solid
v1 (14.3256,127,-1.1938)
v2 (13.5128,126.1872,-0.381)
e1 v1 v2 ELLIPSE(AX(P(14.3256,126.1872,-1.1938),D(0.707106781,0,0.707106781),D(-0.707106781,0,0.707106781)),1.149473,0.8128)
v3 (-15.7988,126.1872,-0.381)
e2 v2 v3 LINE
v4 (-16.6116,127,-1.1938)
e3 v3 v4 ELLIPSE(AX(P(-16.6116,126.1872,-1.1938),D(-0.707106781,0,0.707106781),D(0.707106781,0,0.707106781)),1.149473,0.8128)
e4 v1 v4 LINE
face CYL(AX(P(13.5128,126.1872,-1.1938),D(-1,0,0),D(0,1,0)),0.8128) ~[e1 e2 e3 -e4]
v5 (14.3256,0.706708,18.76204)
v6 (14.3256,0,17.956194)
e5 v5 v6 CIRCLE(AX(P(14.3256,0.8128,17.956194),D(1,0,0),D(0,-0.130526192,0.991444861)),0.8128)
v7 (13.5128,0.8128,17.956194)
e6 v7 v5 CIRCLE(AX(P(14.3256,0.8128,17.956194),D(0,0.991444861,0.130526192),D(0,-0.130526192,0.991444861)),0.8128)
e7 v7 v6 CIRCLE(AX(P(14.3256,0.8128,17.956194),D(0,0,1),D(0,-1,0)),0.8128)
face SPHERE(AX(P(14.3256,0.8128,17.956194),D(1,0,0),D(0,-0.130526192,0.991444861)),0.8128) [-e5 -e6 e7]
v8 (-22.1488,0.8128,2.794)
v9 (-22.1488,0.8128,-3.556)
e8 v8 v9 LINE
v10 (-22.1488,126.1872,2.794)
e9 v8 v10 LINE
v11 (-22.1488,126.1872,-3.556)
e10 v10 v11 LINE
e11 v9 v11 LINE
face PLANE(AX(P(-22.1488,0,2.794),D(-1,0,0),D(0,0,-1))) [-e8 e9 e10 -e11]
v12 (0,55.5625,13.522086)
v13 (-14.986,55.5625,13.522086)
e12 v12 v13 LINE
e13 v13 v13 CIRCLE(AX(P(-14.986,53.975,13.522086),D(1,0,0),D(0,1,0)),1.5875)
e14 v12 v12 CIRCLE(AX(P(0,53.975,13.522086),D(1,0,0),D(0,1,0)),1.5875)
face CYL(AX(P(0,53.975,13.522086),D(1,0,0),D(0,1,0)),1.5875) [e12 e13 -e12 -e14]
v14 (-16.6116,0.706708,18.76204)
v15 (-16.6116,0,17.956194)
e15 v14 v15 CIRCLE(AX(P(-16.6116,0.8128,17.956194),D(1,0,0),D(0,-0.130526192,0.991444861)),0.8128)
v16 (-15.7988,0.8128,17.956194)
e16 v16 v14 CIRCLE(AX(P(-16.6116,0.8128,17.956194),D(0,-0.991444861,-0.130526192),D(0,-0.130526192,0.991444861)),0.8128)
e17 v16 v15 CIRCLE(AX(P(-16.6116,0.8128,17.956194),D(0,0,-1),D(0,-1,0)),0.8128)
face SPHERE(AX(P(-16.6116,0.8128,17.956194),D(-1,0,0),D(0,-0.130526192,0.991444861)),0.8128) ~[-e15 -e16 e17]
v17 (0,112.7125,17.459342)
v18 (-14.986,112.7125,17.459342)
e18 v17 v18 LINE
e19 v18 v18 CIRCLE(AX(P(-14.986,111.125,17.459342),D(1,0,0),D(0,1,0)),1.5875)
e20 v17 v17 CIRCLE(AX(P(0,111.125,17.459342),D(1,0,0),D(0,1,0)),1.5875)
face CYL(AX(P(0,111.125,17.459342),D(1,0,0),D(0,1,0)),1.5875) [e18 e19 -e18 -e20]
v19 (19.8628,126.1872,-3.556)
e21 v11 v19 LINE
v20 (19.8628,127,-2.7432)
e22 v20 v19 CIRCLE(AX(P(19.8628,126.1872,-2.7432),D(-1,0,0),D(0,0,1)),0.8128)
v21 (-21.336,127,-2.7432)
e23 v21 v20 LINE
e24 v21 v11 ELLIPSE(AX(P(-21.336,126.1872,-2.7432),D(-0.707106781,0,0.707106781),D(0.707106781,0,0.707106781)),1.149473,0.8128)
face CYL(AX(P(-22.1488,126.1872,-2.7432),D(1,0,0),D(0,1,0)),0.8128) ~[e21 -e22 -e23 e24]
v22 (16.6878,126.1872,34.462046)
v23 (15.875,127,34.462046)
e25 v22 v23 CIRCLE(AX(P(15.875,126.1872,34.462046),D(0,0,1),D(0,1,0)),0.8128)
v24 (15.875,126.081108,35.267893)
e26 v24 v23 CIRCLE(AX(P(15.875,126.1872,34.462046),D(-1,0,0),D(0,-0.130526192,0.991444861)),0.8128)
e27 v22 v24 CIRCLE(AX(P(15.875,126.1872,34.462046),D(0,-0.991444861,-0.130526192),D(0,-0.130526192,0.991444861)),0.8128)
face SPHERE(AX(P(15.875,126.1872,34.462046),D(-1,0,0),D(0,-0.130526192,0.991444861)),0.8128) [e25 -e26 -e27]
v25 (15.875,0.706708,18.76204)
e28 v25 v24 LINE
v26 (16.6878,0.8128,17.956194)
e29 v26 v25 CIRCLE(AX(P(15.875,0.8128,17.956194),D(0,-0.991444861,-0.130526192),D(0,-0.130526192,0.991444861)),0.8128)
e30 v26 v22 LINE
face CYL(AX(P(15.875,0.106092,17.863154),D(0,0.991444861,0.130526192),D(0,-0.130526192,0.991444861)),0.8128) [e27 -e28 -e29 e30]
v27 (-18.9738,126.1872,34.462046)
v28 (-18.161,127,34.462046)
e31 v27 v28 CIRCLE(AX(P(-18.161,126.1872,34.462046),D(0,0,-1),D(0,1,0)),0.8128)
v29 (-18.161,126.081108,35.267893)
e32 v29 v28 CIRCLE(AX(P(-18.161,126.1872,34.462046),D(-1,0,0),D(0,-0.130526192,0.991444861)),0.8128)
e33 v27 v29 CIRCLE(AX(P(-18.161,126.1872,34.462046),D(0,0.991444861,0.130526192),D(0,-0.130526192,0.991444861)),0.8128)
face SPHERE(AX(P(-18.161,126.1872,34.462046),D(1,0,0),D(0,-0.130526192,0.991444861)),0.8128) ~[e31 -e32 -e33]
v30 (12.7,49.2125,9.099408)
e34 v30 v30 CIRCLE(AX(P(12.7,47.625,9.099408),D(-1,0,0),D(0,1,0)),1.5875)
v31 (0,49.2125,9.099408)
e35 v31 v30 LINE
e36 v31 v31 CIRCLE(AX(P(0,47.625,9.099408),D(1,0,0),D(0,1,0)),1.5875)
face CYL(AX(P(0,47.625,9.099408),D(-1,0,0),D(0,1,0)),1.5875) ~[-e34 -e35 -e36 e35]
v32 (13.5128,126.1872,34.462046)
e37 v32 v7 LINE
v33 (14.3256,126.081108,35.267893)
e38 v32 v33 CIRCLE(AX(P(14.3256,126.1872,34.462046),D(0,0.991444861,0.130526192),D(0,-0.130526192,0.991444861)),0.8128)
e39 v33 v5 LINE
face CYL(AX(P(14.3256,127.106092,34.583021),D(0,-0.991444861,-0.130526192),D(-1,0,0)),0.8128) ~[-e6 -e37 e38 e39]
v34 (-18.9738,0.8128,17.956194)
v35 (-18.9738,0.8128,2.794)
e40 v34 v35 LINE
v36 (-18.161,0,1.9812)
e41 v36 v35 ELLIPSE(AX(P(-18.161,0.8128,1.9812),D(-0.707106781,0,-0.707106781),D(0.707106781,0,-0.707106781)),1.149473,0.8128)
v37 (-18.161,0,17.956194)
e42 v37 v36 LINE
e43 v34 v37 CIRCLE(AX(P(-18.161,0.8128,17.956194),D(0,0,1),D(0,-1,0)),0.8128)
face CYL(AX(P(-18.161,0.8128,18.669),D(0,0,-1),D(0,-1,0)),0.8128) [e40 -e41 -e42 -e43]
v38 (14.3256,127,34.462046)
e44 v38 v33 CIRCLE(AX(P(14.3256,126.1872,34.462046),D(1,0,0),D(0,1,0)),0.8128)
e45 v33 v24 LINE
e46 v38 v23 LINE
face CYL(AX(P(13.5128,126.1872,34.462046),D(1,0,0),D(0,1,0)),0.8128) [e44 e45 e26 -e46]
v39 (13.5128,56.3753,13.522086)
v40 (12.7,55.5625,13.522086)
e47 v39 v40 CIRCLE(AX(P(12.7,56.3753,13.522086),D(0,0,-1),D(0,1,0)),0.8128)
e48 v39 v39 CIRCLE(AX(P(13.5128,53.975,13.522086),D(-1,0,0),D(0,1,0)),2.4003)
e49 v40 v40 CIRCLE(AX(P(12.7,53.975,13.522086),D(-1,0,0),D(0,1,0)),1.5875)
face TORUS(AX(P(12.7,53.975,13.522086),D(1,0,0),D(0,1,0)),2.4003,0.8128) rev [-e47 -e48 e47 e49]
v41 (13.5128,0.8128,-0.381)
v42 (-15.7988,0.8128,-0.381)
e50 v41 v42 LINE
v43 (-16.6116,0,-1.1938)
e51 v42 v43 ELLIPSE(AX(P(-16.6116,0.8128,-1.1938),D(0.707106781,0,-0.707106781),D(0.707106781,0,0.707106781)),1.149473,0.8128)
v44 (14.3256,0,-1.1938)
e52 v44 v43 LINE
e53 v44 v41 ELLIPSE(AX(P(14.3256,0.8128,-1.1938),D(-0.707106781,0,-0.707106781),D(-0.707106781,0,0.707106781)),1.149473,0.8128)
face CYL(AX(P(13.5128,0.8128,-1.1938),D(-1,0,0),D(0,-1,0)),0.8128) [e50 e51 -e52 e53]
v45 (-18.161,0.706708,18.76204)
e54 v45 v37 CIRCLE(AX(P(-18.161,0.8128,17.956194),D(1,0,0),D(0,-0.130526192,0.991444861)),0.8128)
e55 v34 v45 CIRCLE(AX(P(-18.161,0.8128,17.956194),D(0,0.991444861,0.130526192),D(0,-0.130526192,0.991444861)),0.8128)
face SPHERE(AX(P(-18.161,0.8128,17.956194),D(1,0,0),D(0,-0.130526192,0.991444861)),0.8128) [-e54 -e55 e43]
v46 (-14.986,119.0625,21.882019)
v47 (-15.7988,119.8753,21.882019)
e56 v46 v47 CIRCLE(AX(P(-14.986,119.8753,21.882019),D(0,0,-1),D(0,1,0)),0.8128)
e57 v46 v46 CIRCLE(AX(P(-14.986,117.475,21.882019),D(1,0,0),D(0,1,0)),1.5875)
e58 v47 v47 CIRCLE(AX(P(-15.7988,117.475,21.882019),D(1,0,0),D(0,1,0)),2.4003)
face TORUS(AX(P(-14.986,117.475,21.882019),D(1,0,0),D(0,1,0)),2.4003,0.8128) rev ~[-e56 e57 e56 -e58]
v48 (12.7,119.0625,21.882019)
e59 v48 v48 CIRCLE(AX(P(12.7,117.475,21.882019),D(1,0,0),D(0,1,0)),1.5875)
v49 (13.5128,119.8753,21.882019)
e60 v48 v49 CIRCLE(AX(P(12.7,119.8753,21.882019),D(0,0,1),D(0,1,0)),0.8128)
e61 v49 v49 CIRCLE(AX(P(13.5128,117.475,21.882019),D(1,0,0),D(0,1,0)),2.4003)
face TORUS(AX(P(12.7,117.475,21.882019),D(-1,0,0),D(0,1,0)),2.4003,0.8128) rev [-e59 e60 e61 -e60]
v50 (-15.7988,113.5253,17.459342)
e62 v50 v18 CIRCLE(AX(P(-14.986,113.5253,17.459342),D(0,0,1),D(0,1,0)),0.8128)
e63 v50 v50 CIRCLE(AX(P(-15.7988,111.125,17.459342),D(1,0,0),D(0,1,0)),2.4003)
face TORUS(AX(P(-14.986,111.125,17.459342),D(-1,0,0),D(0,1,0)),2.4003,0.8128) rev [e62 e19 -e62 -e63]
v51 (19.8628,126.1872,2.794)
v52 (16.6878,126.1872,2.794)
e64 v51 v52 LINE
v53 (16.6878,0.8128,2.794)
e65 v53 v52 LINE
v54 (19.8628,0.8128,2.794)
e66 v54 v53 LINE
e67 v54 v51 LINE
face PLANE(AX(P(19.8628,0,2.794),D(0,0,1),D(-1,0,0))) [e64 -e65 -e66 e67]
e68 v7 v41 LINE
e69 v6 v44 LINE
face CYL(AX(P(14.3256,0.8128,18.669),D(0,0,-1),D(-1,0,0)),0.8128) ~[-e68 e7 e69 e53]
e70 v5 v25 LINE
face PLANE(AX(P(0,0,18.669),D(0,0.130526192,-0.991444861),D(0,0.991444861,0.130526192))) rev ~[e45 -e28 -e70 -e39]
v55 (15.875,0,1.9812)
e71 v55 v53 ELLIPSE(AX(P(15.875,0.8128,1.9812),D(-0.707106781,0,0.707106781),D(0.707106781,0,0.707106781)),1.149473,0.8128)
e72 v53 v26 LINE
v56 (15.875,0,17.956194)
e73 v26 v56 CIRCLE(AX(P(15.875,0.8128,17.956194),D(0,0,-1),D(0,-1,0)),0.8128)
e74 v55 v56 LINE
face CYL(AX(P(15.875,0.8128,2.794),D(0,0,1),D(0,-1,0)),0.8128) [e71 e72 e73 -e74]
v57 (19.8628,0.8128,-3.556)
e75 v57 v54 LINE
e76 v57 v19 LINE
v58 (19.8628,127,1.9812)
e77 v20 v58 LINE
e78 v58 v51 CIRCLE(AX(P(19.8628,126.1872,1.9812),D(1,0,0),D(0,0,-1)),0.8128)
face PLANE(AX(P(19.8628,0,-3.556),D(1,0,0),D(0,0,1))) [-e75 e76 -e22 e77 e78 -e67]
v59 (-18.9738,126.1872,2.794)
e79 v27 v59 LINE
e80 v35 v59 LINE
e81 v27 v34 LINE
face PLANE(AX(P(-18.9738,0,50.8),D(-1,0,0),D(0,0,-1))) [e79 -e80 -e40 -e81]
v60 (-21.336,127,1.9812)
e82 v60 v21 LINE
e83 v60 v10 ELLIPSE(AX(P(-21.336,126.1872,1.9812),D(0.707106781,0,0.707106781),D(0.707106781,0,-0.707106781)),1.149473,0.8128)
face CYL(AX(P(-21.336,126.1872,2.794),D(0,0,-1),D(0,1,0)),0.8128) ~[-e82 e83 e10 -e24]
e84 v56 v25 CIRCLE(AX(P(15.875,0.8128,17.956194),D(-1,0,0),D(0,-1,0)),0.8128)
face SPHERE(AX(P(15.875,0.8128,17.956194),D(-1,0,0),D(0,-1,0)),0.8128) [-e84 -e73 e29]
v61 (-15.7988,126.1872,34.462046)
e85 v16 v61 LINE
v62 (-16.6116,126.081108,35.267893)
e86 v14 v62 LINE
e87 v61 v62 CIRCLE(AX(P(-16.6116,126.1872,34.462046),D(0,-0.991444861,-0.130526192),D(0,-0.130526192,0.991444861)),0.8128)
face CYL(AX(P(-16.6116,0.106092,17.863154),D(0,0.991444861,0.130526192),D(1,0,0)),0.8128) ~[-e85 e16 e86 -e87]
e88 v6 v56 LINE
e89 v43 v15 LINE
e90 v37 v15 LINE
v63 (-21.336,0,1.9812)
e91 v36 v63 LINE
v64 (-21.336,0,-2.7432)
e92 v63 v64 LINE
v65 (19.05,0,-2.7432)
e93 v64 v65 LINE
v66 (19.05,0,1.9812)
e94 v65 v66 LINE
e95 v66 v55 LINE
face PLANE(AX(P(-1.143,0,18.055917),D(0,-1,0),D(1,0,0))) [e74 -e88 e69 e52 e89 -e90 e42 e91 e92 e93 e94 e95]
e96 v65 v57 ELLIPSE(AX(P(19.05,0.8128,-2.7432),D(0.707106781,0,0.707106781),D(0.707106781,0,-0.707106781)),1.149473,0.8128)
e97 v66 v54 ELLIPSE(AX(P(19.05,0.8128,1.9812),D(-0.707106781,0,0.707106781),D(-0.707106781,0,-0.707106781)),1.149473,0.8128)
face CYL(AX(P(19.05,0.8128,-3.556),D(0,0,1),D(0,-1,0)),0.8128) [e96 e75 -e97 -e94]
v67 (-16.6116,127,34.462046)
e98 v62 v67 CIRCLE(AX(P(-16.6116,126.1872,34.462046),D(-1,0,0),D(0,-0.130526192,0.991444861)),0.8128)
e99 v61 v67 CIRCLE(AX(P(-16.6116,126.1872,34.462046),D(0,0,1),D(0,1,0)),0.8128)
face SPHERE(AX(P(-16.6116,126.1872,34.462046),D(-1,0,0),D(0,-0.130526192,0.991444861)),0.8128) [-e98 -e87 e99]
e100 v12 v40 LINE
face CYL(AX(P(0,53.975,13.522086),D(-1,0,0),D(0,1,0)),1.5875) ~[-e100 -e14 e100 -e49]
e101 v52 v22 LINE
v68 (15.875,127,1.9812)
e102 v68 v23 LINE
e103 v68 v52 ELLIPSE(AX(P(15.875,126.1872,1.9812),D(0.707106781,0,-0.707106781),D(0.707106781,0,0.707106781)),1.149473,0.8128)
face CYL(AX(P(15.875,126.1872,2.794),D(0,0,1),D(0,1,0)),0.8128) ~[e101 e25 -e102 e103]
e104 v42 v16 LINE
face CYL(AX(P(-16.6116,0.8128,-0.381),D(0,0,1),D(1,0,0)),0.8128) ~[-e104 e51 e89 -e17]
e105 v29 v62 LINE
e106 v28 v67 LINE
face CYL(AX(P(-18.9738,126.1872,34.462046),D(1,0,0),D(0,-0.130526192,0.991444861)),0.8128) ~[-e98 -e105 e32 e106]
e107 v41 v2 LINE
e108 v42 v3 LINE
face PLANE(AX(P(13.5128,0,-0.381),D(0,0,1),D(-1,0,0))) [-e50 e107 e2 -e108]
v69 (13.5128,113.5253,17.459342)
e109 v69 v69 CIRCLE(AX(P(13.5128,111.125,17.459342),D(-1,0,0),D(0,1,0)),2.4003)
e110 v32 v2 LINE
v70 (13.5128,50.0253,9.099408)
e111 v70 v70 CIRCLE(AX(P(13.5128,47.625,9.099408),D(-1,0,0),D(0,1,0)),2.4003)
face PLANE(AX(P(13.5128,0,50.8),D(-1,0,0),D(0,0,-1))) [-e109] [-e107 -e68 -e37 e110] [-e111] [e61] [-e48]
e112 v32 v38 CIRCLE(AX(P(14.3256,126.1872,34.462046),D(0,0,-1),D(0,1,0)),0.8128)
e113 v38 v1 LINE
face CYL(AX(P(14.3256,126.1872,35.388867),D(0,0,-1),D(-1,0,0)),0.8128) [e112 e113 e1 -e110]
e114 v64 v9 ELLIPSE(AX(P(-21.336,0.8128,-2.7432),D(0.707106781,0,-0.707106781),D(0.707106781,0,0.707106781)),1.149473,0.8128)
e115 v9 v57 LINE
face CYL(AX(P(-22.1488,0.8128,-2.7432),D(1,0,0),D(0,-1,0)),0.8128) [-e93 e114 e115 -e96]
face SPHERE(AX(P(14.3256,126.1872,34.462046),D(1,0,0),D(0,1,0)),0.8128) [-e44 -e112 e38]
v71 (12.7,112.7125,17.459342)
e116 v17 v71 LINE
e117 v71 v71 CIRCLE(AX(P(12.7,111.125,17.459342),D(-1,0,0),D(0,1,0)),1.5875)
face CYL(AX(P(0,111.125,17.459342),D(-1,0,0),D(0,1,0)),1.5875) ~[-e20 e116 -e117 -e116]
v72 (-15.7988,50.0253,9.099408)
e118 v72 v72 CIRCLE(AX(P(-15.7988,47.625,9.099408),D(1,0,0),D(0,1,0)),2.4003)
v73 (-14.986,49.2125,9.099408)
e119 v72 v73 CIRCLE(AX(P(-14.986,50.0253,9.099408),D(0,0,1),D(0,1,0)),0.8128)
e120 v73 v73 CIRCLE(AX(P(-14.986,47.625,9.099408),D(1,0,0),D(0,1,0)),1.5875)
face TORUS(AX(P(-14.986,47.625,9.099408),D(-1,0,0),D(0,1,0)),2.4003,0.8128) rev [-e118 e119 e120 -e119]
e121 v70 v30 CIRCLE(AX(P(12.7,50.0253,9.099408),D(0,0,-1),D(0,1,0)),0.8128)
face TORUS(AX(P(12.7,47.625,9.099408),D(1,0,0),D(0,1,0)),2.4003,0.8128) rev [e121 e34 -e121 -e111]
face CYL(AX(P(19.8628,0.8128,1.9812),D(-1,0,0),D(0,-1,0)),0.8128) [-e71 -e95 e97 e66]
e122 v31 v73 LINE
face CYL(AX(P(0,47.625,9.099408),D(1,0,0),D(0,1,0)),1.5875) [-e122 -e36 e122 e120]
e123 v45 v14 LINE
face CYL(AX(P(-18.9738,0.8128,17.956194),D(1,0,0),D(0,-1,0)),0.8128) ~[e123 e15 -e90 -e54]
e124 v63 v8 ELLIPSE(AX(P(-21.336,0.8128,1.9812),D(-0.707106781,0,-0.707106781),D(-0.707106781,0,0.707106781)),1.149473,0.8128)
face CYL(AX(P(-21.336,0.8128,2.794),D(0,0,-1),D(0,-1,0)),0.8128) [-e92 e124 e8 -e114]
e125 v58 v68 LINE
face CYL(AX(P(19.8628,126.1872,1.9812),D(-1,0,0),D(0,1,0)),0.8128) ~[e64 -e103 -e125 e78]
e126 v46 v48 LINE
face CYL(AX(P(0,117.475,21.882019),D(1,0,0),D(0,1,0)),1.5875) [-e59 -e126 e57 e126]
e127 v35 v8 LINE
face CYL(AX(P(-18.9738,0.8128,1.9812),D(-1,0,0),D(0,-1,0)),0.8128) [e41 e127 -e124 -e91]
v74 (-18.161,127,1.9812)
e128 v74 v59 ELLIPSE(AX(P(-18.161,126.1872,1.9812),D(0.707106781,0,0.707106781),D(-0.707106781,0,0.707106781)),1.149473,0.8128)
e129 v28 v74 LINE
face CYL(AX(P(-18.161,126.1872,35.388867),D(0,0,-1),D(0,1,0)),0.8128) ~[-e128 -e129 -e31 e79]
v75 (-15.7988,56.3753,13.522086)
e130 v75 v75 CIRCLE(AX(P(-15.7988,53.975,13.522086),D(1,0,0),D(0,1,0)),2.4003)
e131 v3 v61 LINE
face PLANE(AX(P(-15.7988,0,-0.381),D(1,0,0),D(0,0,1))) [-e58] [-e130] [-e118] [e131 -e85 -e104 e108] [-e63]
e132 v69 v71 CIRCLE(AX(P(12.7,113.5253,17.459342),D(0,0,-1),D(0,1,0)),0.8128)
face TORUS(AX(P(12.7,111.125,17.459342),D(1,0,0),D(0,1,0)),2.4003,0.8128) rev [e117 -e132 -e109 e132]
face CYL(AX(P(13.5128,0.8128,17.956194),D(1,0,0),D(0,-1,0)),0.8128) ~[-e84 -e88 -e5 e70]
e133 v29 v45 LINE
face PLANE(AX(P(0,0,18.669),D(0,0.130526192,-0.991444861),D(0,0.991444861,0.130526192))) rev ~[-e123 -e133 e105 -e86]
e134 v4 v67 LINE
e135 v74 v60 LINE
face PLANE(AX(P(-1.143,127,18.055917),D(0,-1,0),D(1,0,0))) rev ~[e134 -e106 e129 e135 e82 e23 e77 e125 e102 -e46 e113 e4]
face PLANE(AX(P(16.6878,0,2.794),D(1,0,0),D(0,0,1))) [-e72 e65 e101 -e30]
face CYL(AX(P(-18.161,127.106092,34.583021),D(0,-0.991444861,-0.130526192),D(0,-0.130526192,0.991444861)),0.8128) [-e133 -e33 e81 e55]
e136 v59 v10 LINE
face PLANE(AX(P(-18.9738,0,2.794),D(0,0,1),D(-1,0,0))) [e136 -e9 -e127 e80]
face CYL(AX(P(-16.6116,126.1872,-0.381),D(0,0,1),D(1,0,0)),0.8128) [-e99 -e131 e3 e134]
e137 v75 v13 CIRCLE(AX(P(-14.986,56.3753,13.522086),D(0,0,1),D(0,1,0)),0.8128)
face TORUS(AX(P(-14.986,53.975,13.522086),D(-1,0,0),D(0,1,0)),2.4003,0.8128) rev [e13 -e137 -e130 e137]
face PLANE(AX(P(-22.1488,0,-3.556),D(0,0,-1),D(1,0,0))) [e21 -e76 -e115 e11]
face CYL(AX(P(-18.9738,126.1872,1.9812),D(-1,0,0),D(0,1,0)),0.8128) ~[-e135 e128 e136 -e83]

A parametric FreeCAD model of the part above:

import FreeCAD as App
import Part
import Sketcher
from FreeCAD import Vector
Q = App.Units.Quantity


def edges_at(feature, points):
    """Names of the edges that pass closest to the given points."""
    edges = feature.Shape.Edges
    near = lambda p: min(range(len(edges)), key=lambda i: edges[i].distToShape(Part.Vertex(*p))[0])
    return sorted({f"Edge{near(p) + 1}" for p in points})


def add_polygon(sketch, points):
    """Adds a closed chain of lines whose ends are joined by coincident constraints."""
    first, n = sketch.GeometryCount, len(points)
    for a, b in zip(points, points[1:] + points[:1]):
        sketch.addGeometry(Part.LineSegment(App.Vector(*a, 0), App.Vector(*b, 0)), False)
    for i in range(n):
        sketch.addConstraint(Sketcher.Constraint("Coincident", first + i, 2, first + (i + 1) % n, 1))

doc = App.newDocument("Part")
body = doc.addObject("PartDesign::Body", "Body")

# Sketch on XZ plane
sketch1 = body.newObject("Sketcher::SketchObject", "Sketch")
sketch1.AttachmentSupport = (doc.getObject("XZ_Plane"), [""])
sketch1.MapMode = "FlatFace"
add_polygon(sketch1, [(13.5, 50.8), (13.5, -0.4), (-15.8, -0.4), (-15.8, 50.8), (-19, 50.8), (-19, 2.8), (-22.1, 2.8), (-22.1, -3.6), (19.9, -3.6), (19.9, 2.8), (16.7, 2.8), (16.7, 50.8)])  # lines 0-11
sketch1.addConstraint([
    Sketcher.Constraint("Vertical", 0),
    Sketcher.Constraint("Horizontal", 1),
    Sketcher.Constraint("Vertical", 2),
    Sketcher.Constraint("Horizontal", 3),
    Sketcher.Constraint("Vertical", 4),
    Sketcher.Constraint("Horizontal", 5),
    Sketcher.Constraint("Vertical", 6),
    Sketcher.Constraint("Horizontal", 7),
    Sketcher.Constraint("Vertical", 8),
    Sketcher.Constraint("Horizontal", 9),
    Sketcher.Constraint("Vertical", 10),
    Sketcher.Constraint("Horizontal", 11),
    Sketcher.Constraint("Horizontal", 5, 2, 8, 2),
    Sketcher.Constraint("Horizontal", 3, 2, 10, 2),
    Sketcher.Constraint("Equal", 3, 5),
    Sketcher.Constraint("Equal", 5, 9),
    Sketcher.Constraint("Equal", 9, 11),
    Sketcher.Constraint("DistanceY", -1, 1, 2, 2, Q("2 in")),
    Sketcher.Constraint("DistanceY", 4, 2, 4, 1, Q("1.89 in")),
    Sketcher.Constraint("DistanceY", 6, 2, 6, 1, Q("0.25 in")),
    Sketcher.Constraint("DistanceX", 1, 2, 1, 1, Q("1.154 in")),
    Sketcher.Constraint("DistanceX", 3, 2, 3, 1, Q("0.125 in")),
    Sketcher.Constraint("DistanceY", 0, 2, 0, 1, Q("2.015 in")),
    Sketcher.Constraint("DistanceX", -1, 1, 0, 2, Q("0.532 in")),
])
pad1 = body.newObject("PartDesign::Pad", "Pad")
pad1.Profile = sketch1
pad1.Length = Q("5 in")
pad1.Reversed = True

# Sketch on YZ plane
sketch2 = body.newObject("Sketcher::SketchObject", "Sketch001")
sketch2.AttachmentSupport = (doc.getObject("YZ_Plane"), [""])
sketch2.MapMode = "FlatFace"
sketch2.addGeometry([
    Part.Circle(Vector(47.6, 9.1, 0), Vector(0, 0, 1), 1.6),
    Part.Circle(Vector(54, 13.5, 0), Vector(0, 0, 1), 1.6),
    Part.Circle(Vector(111.1, 17.5, 0), Vector(0, 0, 1), 1.6),
    Part.Circle(Vector(117.5, 21.9, 0), Vector(0, 0, 1), 1.6),
], False)
sketch2.addConstraint([
    Sketcher.Constraint("Equal", 0, 1),
    Sketcher.Constraint("Equal", 1, 2),
    Sketcher.Constraint("Equal", 2, 3),
    Sketcher.Constraint("Diameter", 0, Q("0.125 in")),
    Sketcher.Constraint("DistanceX", 0, 3, 2, 3, Q("2.5 in")),
    Sketcher.Constraint("DistanceX", 1, 3, 3, 3, Q("2.5 in")),
    Sketcher.Constraint("DistanceX", 0, 3, 1, 3, Q("0.25 in")),
    Sketcher.Constraint("DistanceX", -1, 1, 0, 3, Q("1.875 in")),
    Sketcher.Constraint("DistanceY", -1, 1, 2, 3, Q("17.459342 mm")),
    Sketcher.Constraint("DistanceY", -1, 1, 3, 3, Q("21.882019 mm")),
    Sketcher.Constraint("DistanceY", 0, 3, 3, 3, Q("12.782612 mm")),
    Sketcher.Constraint("DistanceY", -1, 1, 1, 3, Q("13.522086 mm")),
])
pad2 = body.newObject("PartDesign::Pad", "Pad001")
pad2.Profile = sketch2
pad2.Length = Q("1.25 in")
pad2.Midplane = True

# Sketch on YZ plane
sketch3 = body.newObject("Sketcher::SketchObject", "Sketch002")
sketch3.AttachmentSupport = (doc.getObject("YZ_Plane"), [""])
sketch3.MapMode = "FlatFace"
add_polygon(sketch3, [(0, 58), (0, 19), (128, 36), (128, 58)])  # lines 0-3
sketch3.addConstraint([
    Sketcher.Constraint("Vertical", 0),
    Sketcher.Constraint("Vertical", 2),
    Sketcher.Constraint("Horizontal", 3),
    Sketcher.Constraint("PointOnObject", 0, 2, -2),
    Sketcher.Constraint("Angle", 1, Q("7.5 deg")),
    Sketcher.Constraint("DistanceY", -1, 1, 0, 2, Q("0.735 in")),
    Sketcher.Constraint("DistanceX", 3, 2, 3, 1, Q("128.44804 mm")),
    Sketcher.Constraint("DistanceY", 2, 1, 2, 2, Q("22.298121 mm")),
])
pocket1 = body.newObject("PartDesign::Pocket", "Pocket")
pocket1.Profile = sketch3
pocket1.Length = Q("2 in")
pocket1.Midplane = True
doc.recompute()

fillet = body.newObject("PartDesign::Fillet", "Fillet")
fillet.Base = (pocket1, edges_at(pocket1, [
    (-18.974, 63.5, 27.029),
    (-15.799, 63.5, 27.029),
    (-15.799, 0, 9.144),
    (16.688, 0, 10.732),
    (16.688, 63.5, 27.029),
    (13.513, 63.5, 27.029),
    (-1.143, 0, -0.381),
    (-18.974, 0, 10.732),
    (13.513, 0, 9.144),
    (-1.143, 0, -3.556),
    (18.275, 0, 2.794),
    (19.863, 0, -0.381),
    (-20.561, 0, 2.794),
    (-22.149, 0, -0.381),
    (-15.799, 46.038, 9.099),
    (-15.799, 52.388, 13.522),
    (13.513, 46.038, 9.099),
    (13.513, 52.388, 13.522),
    (13.513, 109.537, 17.459),
    (13.513, 115.888, 21.882),
    (-15.799, 109.537, 17.459),
    (-15.799, 115.888, 21.882),
    (16.688, 127, 19.091),
    (18.275, 127, 2.794),
    (-1.143, 127, -3.556),
    (-22.149, 127, -0.381),
    (-20.561, 127, 2.794),
    (-18.974, 127, 19.091),
    (-15.799, 127, 17.504),
    (15.1, 127, 35.389),
    (-17.386, 127, 35.389),
    (-1.143, 127, -0.381),
    (15.1, 0, 18.669),
    (-17.386, 0, 18.669),
    (13.513, 127, 17.504),
]))
fillet.Radius = Q("0.032 in")

doc.recompute()
